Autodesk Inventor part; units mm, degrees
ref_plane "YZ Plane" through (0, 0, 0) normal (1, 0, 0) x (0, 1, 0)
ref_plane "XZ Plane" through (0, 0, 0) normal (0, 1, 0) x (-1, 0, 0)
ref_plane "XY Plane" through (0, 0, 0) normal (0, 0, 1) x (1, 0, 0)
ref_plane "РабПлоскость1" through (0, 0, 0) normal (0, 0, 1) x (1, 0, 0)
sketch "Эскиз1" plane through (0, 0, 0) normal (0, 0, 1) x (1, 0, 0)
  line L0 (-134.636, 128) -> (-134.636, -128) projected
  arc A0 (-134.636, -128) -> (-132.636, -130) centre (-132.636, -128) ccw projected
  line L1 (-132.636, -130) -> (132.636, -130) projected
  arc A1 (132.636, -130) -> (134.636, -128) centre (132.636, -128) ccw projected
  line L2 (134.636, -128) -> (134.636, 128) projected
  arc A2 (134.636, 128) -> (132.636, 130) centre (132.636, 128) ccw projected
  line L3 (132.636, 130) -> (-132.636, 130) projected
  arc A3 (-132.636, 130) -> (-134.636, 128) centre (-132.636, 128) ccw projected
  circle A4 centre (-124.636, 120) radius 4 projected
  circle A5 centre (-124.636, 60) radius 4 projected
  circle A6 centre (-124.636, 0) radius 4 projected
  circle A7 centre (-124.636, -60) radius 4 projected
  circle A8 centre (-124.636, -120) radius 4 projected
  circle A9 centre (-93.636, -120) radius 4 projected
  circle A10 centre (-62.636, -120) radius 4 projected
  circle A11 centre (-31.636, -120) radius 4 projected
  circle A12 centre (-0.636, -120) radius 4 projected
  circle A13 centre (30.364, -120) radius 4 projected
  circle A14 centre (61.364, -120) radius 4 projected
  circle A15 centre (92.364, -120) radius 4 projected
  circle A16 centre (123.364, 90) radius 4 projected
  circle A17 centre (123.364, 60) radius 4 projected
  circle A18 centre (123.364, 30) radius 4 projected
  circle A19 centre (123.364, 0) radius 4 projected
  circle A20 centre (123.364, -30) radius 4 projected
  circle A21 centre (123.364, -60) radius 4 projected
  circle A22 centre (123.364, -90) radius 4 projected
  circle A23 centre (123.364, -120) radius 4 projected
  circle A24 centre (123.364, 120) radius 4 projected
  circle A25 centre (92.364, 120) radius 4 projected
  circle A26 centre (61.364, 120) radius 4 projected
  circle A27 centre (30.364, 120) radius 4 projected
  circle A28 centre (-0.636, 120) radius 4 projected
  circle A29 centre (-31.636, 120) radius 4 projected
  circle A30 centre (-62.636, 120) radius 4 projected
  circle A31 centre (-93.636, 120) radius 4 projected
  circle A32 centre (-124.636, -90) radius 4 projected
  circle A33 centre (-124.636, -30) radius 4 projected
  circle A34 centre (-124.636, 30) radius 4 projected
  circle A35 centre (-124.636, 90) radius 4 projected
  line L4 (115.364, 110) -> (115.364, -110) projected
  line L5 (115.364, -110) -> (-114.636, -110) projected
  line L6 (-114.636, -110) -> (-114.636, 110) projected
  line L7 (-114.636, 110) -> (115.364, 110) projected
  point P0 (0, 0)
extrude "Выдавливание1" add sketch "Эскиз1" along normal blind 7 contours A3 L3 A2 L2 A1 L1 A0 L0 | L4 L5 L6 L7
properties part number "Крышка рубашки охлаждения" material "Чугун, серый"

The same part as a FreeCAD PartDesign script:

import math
import FreeCAD as App
import Part
import Sketcher
from FreeCAD import Vector

doc = App.newDocument("Part")
body = doc.addObject("PartDesign::Body", "Body")

# Sketch on XY plane
sketch1 = body.newObject("Sketcher::SketchObject", "Sketch")
sketch1.AttachmentSupport = (doc.getObject("XY_Plane"), [""])
sketch1.MapMode = "FlatFace"
sketch1.addGeometry(Part.ArcOfCircle(Part.Circle(Vector(-132.6, 128, 0), Vector(0, 0, 1), 2), math.radians(90), math.radians(180)), False)
sketch1.addGeometry(Part.LineSegment(Vector(-134.6, 128, 0), Vector(-134.6, -128, 0)), False)
sketch1.addGeometry(Part.ArcOfCircle(Part.Circle(Vector(-132.6, -128, 0), Vector(0, 0, 1), 2), math.radians(180), math.radians(270)), False)
sketch1.addGeometry(Part.LineSegment(Vector(-132.6, -130, 0), Vector(132.6, -130, 0)), False)
sketch1.addGeometry(Part.ArcOfCircle(Part.Circle(Vector(132.6, -128, 0), Vector(0, 0, 1), 2), math.radians(-90), math.radians(0)), False)
sketch1.addGeometry(Part.LineSegment(Vector(134.6, -128, 0), Vector(134.6, 128, 0)), False)
sketch1.addGeometry(Part.ArcOfCircle(Part.Circle(Vector(132.6, 128, 0), Vector(0, 0, 1), 2), math.radians(0), math.radians(90)), False)
sketch1.addGeometry(Part.LineSegment(Vector(132.6, 130, 0), Vector(-132.6, 130, 0)), False)
sketch1.addGeometry(Part.Circle(Vector(-124.6, -120, 0), Vector(0, 0, 1), 4), False)
sketch1.addGeometry(Part.Circle(Vector(-93.6, -120, 0), Vector(0, 0, 1), 4), False)
sketch1.addGeometry(Part.Circle(Vector(-124.6, -90, 0), Vector(0, 0, 1), 4), False)
sketch1.addGeometry(Part.Circle(Vector(-62.6, -120, 0), Vector(0, 0, 1), 4), False)
sketch1.addGeometry(Part.Circle(Vector(-31.6, -120, 0), Vector(0, 0, 1), 4), False)
sketch1.addGeometry(Part.Circle(Vector(-0.6, -120, 0), Vector(0, 0, 1), 4), False)
sketch1.addGeometry(Part.Circle(Vector(-124.6, -60, 0), Vector(0, 0, 1), 4), False)
sketch1.addGeometry(Part.Circle(Vector(-124.6, -30, 0), Vector(0, 0, 1), 4), False)
sketch1.addGeometry(Part.Circle(Vector(30.4, -120, 0), Vector(0, 0, 1), 4), False)
sketch1.addGeometry(Part.Circle(Vector(61.4, -120, 0), Vector(0, 0, 1), 4), False)
sketch1.addGeometry(Part.Circle(Vector(92.4, -120, 0), Vector(0, 0, 1), 4), False)
sketch1.addGeometry(Part.Circle(Vector(123.4, -120, 0), Vector(0, 0, 1), 4), False)
sketch1.addGeometry(Part.Circle(Vector(123.4, -90, 0), Vector(0, 0, 1), 4), False)
sketch1.addGeometry(Part.Circle(Vector(123.4, -60, 0), Vector(0, 0, 1), 4), False)
sketch1.addGeometry(Part.Circle(Vector(123.4, -30, 0), Vector(0, 0, 1), 4), False)
sketch1.addGeometry(Part.Circle(Vector(-124.6, 0, 0), Vector(0, 0, 1), 4), False)
sketch1.addGeometry(Part.Circle(Vector(-124.6, 30, 0), Vector(0, 0, 1), 4), False)
sketch1.addGeometry(Part.Circle(Vector(-124.6, 60, 0), Vector(0, 0, 1), 4), False)
sketch1.addGeometry(Part.Circle(Vector(-124.6, 90, 0), Vector(0, 0, 1), 4), False)
sketch1.addGeometry(Part.Circle(Vector(-124.6, 120, 0), Vector(0, 0, 1), 4), False)
sketch1.addGeometry(Part.Circle(Vector(-93.6, 120, 0), Vector(0, 0, 1), 4), False)
sketch1.addGeometry(Part.Circle(Vector(-62.6, 120, 0), Vector(0, 0, 1), 4), False)
sketch1.addGeometry(Part.Circle(Vector(-31.6, 120, 0), Vector(0, 0, 1), 4), False)
sketch1.addGeometry(Part.Circle(Vector(-0.6, 120, 0), Vector(0, 0, 1), 4), False)
sketch1.addGeometry(Part.Circle(Vector(123.4, 0, 0), Vector(0, 0, 1), 4), False)
sketch1.addGeometry(Part.Circle(Vector(123.4, 30, 0), Vector(0, 0, 1), 4), False)
sketch1.addGeometry(Part.Circle(Vector(123.4, 60, 0), Vector(0, 0, 1), 4), False)
sketch1.addGeometry(Part.Circle(Vector(30.4, 120, 0), Vector(0, 0, 1), 4), False)
sketch1.addGeometry(Part.Circle(Vector(61.4, 120, 0), Vector(0, 0, 1), 4), False)
sketch1.addGeometry(Part.Circle(Vector(123.4, 90, 0), Vector(0, 0, 1), 4), False)
sketch1.addGeometry(Part.Circle(Vector(92.4, 120, 0), Vector(0, 0, 1), 4), False)
sketch1.addGeometry(Part.Circle(Vector(123.4, 120, 0), Vector(0, 0, 1), 4), False)
sketch1.addConstraint(Sketcher.Constraint("Tangent", 0, 2, 1, 1))
sketch1.addConstraint(Sketcher.Constraint("Tangent", 1, 2, 2, 1))
sketch1.addConstraint(Sketcher.Constraint("Tangent", 2, 2, 3, 1))
sketch1.addConstraint(Sketcher.Constraint("Tangent", 3, 2, 4, 1))
sketch1.addConstraint(Sketcher.Constraint("Tangent", 4, 2, 5, 1))
sketch1.addConstraint(Sketcher.Constraint("Tangent", 5, 2, 6, 1))
sketch1.addConstraint(Sketcher.Constraint("Tangent", 6, 2, 7, 1))
sketch1.addConstraint(Sketcher.Constraint("Tangent", 7, 2, 0, 1))
sketch1.addConstraint(Sketcher.Constraint("Vertical", 1))
sketch1.addConstraint(Sketcher.Constraint("Horizontal", 3))
sketch1.addConstraint(Sketcher.Constraint("Vertical", 5))
sketch1.addConstraint(Sketcher.Constraint("Horizontal", 7))
sketch1.addConstraint(Sketcher.Constraint("Equal", 0, 2))
sketch1.addConstraint(Sketcher.Constraint("Equal", 2, 4))
sketch1.addConstraint(Sketcher.Constraint("Equal", 4, 6))
sketch1.addConstraint(Sketcher.Constraint("Equal", 8, 9))
sketch1.addConstraint(Sketcher.Constraint("Equal", 9, 10))
sketch1.addConstraint(Sketcher.Constraint("Equal", 10, 11))
sketch1.addConstraint(Sketcher.Constraint("Equal", 11, 12))
sketch1.addConstraint(Sketcher.Constraint("Equal", 12, 13))
sketch1.addConstraint(Sketcher.Constraint("Equal", 13, 14))
sketch1.addConstraint(Sketcher.Constraint("Equal", 14, 15))
sketch1.addConstraint(Sketcher.Constraint("Equal", 15, 16))
sketch1.addConstraint(Sketcher.Constraint("Equal", 16, 17))
sketch1.addConstraint(Sketcher.Constraint("Equal", 17, 18))
sketch1.addConstraint(Sketcher.Constraint("Equal", 18, 19))
sketch1.addConstraint(Sketcher.Constraint("Equal", 19, 20))
sketch1.addConstraint(Sketcher.Constraint("Equal", 20, 21))
sketch1.addConstraint(Sketcher.Constraint("Equal", 21, 22))
sketch1.addConstraint(Sketcher.Constraint("Equal", 22, 23))
sketch1.addConstraint(Sketcher.Constraint("Equal", 23, 24))
sketch1.addConstraint(Sketcher.Constraint("Equal", 24, 25))
sketch1.addConstraint(Sketcher.Constraint("Equal", 25, 26))
sketch1.addConstraint(Sketcher.Constraint("Equal", 26, 27))
sketch1.addConstraint(Sketcher.Constraint("Equal", 27, 28))
sketch1.addConstraint(Sketcher.Constraint("Equal", 28, 29))
sketch1.addConstraint(Sketcher.Constraint("Equal", 29, 30))
sketch1.addConstraint(Sketcher.Constraint("Equal", 30, 31))
sketch1.addConstraint(Sketcher.Constraint("Equal", 31, 32))
sketch1.addConstraint(Sketcher.Constraint("Equal", 32, 33))
sketch1.addConstraint(Sketcher.Constraint("Equal", 33, 34))
sketch1.addConstraint(Sketcher.Constraint("Equal", 34, 35))
sketch1.addConstraint(Sketcher.Constraint("Equal", 35, 36))
sketch1.addConstraint(Sketcher.Constraint("Equal", 36, 37))
sketch1.addConstraint(Sketcher.Constraint("Equal", 37, 38))
sketch1.addConstraint(Sketcher.Constraint("Equal", 38, 39))
sketch1.addConstraint(Sketcher.Constraint("Symmetric", 0, 3, 4, 3, -1, 1))
sketch1.addConstraint(Sketcher.Constraint("Symmetric", 15, 3, 24, 3, -1))
sketch1.addConstraint(Sketcher.Constraint("Symmetric", 14, 3, 25, 3, -1))
sketch1.addConstraint(Sketcher.Constraint("Symmetric", 10, 3, 26, 3, -1))
sketch1.addConstraint(Sketcher.Constraint("Symmetric", 8, 3, 27, 3, -1))
sketch1.addConstraint(Sketcher.Constraint("Symmetric", 9, 3, 28, 3, -1))
sketch1.addConstraint(Sketcher.Constraint("Symmetric", 11, 3, 29, 3, -1))
sketch1.addConstraint(Sketcher.Constraint("Symmetric", 12, 3, 30, 3, -1))
sketch1.addConstraint(Sketcher.Constraint("Symmetric", 13, 3, 31, 3, -1))
sketch1.addConstraint(Sketcher.Constraint("Symmetric", 22, 3, 33, 3, -1))
sketch1.addConstraint(Sketcher.Constraint("Symmetric", 21, 3, 34, 3, -1))
sketch1.addConstraint(Sketcher.Constraint("Symmetric", 16, 3, 35, 3, -1))
sketch1.addConstraint(Sketcher.Constraint("Symmetric", 17, 3, 36, 3, -1))
sketch1.addConstraint(Sketcher.Constraint("Symmetric", 20, 3, 37, 3, -1))
sketch1.addConstraint(Sketcher.Constraint("Symmetric", 18, 3, 38, 3, -1))
sketch1.addConstraint(Sketcher.Constraint("Symmetric", 19, 3, 39, 3, -1))
sketch1.addConstraint(Sketcher.Constraint("PointOnObject", 23, 3, -1))
sketch1.addConstraint(Sketcher.Constraint("PointOnObject", 32, 3, -1))
sketch1.addConstraint(Sketcher.Constraint("Horizontal", 8, 3, 9, 3))
sketch1.addConstraint(Sketcher.Constraint("Horizontal", 9, 3, 11, 3))
sketch1.addConstraint(Sketcher.Constraint("Horizontal", 11, 3, 12, 3))
sketch1.addConstraint(Sketcher.Constraint("Horizontal", 12, 3, 13, 3))
sketch1.addConstraint(Sketcher.Constraint("Horizontal", 13, 3, 16, 3))
sketch1.addConstraint(Sketcher.Constraint("Horizontal", 16, 3, 17, 3))
sketch1.addConstraint(Sketcher.Constraint("Horizontal", 17, 3, 18, 3))
sketch1.addConstraint(Sketcher.Constraint("Horizontal", 18, 3, 19, 3))
sketch1.addConstraint(Sketcher.Constraint("Horizontal", 10, 3, 20, 3))
sketch1.addConstraint(Sketcher.Constraint("Horizontal", 14, 3, 21, 3))
sketch1.addConstraint(Sketcher.Constraint("Horizontal", 15, 3, 22, 3))
sketch1.addConstraint(Sketcher.Constraint("Vertical", 8, 3, 10, 3))
sketch1.addConstraint(Sketcher.Constraint("Vertical", 10, 3, 14, 3))
sketch1.addConstraint(Sketcher.Constraint("Vertical", 14, 3, 15, 3))
sketch1.addConstraint(Sketcher.Constraint("Vertical", 19, 3, 20, 3))
sketch1.addConstraint(Sketcher.Constraint("Vertical", 20, 3, 21, 3))
sketch1.addConstraint(Sketcher.Constraint("Vertical", 21, 3, 22, 3))
sketch1.addConstraint(Sketcher.Constraint("Vertical", 15, 3, 23, 3))
sketch1.addConstraint(Sketcher.Constraint("Vertical", 22, 3, 32, 3))
sketch1.addConstraint(Sketcher.Constraint("Diameter", 8, 8.0))
sketch1.addConstraint(Sketcher.Constraint("Radius", 0, 2.0))
sketch1.addConstraint(Sketcher.Constraint("DistanceY", 1, 2, 1, 1, 256.0))
sketch1.addConstraint(Sketcher.Constraint("DistanceY", 8, 3, -1, 1, 120.0))
sketch1.addConstraint(Sketcher.Constraint("DistanceY", 10, 3, -1, 1, 90.0))
sketch1.addConstraint(Sketcher.Constraint("DistanceY", 14, 3, -1, 1, 60.0))
sketch1.addConstraint(Sketcher.Constraint("DistanceY", 15, 3, -1, 1, 30.0))
sketch1.addConstraint(Sketcher.Constraint("DistanceX", 2, 3, 8, 3, 8.0))
sketch1.addConstraint(Sketcher.Constraint("DistanceX", 8, 3, 9, 3, 31.0))
sketch1.addConstraint(Sketcher.Constraint("DistanceX", 9, 3, 11, 3, 31.0))
sketch1.addConstraint(Sketcher.Constraint("DistanceX", 11, 3, 12, 3, 31.0))
sketch1.addConstraint(Sketcher.Constraint("DistanceX", 12, 3, 13, 3, 31.0))
sketch1.addConstraint(Sketcher.Constraint("DistanceX", 13, 3, 16, 3, 31.0))
sketch1.addConstraint(Sketcher.Constraint("DistanceX", 16, 3, 17, 3, 31.0))
sketch1.addConstraint(Sketcher.Constraint("DistanceX", 17, 3, 18, 3, 31.0))
sketch1.addConstraint(Sketcher.Constraint("DistanceX", 18, 3, 19, 3, 31.0))
sketch1.addConstraint(Sketcher.Constraint("DistanceX", 3, 1, 3, 2, 265.272))
pad1 = body.newObject("PartDesign::Pad", "Pad")
pad1.Profile = sketch1
pad1.Length = 7

doc.recompute()
